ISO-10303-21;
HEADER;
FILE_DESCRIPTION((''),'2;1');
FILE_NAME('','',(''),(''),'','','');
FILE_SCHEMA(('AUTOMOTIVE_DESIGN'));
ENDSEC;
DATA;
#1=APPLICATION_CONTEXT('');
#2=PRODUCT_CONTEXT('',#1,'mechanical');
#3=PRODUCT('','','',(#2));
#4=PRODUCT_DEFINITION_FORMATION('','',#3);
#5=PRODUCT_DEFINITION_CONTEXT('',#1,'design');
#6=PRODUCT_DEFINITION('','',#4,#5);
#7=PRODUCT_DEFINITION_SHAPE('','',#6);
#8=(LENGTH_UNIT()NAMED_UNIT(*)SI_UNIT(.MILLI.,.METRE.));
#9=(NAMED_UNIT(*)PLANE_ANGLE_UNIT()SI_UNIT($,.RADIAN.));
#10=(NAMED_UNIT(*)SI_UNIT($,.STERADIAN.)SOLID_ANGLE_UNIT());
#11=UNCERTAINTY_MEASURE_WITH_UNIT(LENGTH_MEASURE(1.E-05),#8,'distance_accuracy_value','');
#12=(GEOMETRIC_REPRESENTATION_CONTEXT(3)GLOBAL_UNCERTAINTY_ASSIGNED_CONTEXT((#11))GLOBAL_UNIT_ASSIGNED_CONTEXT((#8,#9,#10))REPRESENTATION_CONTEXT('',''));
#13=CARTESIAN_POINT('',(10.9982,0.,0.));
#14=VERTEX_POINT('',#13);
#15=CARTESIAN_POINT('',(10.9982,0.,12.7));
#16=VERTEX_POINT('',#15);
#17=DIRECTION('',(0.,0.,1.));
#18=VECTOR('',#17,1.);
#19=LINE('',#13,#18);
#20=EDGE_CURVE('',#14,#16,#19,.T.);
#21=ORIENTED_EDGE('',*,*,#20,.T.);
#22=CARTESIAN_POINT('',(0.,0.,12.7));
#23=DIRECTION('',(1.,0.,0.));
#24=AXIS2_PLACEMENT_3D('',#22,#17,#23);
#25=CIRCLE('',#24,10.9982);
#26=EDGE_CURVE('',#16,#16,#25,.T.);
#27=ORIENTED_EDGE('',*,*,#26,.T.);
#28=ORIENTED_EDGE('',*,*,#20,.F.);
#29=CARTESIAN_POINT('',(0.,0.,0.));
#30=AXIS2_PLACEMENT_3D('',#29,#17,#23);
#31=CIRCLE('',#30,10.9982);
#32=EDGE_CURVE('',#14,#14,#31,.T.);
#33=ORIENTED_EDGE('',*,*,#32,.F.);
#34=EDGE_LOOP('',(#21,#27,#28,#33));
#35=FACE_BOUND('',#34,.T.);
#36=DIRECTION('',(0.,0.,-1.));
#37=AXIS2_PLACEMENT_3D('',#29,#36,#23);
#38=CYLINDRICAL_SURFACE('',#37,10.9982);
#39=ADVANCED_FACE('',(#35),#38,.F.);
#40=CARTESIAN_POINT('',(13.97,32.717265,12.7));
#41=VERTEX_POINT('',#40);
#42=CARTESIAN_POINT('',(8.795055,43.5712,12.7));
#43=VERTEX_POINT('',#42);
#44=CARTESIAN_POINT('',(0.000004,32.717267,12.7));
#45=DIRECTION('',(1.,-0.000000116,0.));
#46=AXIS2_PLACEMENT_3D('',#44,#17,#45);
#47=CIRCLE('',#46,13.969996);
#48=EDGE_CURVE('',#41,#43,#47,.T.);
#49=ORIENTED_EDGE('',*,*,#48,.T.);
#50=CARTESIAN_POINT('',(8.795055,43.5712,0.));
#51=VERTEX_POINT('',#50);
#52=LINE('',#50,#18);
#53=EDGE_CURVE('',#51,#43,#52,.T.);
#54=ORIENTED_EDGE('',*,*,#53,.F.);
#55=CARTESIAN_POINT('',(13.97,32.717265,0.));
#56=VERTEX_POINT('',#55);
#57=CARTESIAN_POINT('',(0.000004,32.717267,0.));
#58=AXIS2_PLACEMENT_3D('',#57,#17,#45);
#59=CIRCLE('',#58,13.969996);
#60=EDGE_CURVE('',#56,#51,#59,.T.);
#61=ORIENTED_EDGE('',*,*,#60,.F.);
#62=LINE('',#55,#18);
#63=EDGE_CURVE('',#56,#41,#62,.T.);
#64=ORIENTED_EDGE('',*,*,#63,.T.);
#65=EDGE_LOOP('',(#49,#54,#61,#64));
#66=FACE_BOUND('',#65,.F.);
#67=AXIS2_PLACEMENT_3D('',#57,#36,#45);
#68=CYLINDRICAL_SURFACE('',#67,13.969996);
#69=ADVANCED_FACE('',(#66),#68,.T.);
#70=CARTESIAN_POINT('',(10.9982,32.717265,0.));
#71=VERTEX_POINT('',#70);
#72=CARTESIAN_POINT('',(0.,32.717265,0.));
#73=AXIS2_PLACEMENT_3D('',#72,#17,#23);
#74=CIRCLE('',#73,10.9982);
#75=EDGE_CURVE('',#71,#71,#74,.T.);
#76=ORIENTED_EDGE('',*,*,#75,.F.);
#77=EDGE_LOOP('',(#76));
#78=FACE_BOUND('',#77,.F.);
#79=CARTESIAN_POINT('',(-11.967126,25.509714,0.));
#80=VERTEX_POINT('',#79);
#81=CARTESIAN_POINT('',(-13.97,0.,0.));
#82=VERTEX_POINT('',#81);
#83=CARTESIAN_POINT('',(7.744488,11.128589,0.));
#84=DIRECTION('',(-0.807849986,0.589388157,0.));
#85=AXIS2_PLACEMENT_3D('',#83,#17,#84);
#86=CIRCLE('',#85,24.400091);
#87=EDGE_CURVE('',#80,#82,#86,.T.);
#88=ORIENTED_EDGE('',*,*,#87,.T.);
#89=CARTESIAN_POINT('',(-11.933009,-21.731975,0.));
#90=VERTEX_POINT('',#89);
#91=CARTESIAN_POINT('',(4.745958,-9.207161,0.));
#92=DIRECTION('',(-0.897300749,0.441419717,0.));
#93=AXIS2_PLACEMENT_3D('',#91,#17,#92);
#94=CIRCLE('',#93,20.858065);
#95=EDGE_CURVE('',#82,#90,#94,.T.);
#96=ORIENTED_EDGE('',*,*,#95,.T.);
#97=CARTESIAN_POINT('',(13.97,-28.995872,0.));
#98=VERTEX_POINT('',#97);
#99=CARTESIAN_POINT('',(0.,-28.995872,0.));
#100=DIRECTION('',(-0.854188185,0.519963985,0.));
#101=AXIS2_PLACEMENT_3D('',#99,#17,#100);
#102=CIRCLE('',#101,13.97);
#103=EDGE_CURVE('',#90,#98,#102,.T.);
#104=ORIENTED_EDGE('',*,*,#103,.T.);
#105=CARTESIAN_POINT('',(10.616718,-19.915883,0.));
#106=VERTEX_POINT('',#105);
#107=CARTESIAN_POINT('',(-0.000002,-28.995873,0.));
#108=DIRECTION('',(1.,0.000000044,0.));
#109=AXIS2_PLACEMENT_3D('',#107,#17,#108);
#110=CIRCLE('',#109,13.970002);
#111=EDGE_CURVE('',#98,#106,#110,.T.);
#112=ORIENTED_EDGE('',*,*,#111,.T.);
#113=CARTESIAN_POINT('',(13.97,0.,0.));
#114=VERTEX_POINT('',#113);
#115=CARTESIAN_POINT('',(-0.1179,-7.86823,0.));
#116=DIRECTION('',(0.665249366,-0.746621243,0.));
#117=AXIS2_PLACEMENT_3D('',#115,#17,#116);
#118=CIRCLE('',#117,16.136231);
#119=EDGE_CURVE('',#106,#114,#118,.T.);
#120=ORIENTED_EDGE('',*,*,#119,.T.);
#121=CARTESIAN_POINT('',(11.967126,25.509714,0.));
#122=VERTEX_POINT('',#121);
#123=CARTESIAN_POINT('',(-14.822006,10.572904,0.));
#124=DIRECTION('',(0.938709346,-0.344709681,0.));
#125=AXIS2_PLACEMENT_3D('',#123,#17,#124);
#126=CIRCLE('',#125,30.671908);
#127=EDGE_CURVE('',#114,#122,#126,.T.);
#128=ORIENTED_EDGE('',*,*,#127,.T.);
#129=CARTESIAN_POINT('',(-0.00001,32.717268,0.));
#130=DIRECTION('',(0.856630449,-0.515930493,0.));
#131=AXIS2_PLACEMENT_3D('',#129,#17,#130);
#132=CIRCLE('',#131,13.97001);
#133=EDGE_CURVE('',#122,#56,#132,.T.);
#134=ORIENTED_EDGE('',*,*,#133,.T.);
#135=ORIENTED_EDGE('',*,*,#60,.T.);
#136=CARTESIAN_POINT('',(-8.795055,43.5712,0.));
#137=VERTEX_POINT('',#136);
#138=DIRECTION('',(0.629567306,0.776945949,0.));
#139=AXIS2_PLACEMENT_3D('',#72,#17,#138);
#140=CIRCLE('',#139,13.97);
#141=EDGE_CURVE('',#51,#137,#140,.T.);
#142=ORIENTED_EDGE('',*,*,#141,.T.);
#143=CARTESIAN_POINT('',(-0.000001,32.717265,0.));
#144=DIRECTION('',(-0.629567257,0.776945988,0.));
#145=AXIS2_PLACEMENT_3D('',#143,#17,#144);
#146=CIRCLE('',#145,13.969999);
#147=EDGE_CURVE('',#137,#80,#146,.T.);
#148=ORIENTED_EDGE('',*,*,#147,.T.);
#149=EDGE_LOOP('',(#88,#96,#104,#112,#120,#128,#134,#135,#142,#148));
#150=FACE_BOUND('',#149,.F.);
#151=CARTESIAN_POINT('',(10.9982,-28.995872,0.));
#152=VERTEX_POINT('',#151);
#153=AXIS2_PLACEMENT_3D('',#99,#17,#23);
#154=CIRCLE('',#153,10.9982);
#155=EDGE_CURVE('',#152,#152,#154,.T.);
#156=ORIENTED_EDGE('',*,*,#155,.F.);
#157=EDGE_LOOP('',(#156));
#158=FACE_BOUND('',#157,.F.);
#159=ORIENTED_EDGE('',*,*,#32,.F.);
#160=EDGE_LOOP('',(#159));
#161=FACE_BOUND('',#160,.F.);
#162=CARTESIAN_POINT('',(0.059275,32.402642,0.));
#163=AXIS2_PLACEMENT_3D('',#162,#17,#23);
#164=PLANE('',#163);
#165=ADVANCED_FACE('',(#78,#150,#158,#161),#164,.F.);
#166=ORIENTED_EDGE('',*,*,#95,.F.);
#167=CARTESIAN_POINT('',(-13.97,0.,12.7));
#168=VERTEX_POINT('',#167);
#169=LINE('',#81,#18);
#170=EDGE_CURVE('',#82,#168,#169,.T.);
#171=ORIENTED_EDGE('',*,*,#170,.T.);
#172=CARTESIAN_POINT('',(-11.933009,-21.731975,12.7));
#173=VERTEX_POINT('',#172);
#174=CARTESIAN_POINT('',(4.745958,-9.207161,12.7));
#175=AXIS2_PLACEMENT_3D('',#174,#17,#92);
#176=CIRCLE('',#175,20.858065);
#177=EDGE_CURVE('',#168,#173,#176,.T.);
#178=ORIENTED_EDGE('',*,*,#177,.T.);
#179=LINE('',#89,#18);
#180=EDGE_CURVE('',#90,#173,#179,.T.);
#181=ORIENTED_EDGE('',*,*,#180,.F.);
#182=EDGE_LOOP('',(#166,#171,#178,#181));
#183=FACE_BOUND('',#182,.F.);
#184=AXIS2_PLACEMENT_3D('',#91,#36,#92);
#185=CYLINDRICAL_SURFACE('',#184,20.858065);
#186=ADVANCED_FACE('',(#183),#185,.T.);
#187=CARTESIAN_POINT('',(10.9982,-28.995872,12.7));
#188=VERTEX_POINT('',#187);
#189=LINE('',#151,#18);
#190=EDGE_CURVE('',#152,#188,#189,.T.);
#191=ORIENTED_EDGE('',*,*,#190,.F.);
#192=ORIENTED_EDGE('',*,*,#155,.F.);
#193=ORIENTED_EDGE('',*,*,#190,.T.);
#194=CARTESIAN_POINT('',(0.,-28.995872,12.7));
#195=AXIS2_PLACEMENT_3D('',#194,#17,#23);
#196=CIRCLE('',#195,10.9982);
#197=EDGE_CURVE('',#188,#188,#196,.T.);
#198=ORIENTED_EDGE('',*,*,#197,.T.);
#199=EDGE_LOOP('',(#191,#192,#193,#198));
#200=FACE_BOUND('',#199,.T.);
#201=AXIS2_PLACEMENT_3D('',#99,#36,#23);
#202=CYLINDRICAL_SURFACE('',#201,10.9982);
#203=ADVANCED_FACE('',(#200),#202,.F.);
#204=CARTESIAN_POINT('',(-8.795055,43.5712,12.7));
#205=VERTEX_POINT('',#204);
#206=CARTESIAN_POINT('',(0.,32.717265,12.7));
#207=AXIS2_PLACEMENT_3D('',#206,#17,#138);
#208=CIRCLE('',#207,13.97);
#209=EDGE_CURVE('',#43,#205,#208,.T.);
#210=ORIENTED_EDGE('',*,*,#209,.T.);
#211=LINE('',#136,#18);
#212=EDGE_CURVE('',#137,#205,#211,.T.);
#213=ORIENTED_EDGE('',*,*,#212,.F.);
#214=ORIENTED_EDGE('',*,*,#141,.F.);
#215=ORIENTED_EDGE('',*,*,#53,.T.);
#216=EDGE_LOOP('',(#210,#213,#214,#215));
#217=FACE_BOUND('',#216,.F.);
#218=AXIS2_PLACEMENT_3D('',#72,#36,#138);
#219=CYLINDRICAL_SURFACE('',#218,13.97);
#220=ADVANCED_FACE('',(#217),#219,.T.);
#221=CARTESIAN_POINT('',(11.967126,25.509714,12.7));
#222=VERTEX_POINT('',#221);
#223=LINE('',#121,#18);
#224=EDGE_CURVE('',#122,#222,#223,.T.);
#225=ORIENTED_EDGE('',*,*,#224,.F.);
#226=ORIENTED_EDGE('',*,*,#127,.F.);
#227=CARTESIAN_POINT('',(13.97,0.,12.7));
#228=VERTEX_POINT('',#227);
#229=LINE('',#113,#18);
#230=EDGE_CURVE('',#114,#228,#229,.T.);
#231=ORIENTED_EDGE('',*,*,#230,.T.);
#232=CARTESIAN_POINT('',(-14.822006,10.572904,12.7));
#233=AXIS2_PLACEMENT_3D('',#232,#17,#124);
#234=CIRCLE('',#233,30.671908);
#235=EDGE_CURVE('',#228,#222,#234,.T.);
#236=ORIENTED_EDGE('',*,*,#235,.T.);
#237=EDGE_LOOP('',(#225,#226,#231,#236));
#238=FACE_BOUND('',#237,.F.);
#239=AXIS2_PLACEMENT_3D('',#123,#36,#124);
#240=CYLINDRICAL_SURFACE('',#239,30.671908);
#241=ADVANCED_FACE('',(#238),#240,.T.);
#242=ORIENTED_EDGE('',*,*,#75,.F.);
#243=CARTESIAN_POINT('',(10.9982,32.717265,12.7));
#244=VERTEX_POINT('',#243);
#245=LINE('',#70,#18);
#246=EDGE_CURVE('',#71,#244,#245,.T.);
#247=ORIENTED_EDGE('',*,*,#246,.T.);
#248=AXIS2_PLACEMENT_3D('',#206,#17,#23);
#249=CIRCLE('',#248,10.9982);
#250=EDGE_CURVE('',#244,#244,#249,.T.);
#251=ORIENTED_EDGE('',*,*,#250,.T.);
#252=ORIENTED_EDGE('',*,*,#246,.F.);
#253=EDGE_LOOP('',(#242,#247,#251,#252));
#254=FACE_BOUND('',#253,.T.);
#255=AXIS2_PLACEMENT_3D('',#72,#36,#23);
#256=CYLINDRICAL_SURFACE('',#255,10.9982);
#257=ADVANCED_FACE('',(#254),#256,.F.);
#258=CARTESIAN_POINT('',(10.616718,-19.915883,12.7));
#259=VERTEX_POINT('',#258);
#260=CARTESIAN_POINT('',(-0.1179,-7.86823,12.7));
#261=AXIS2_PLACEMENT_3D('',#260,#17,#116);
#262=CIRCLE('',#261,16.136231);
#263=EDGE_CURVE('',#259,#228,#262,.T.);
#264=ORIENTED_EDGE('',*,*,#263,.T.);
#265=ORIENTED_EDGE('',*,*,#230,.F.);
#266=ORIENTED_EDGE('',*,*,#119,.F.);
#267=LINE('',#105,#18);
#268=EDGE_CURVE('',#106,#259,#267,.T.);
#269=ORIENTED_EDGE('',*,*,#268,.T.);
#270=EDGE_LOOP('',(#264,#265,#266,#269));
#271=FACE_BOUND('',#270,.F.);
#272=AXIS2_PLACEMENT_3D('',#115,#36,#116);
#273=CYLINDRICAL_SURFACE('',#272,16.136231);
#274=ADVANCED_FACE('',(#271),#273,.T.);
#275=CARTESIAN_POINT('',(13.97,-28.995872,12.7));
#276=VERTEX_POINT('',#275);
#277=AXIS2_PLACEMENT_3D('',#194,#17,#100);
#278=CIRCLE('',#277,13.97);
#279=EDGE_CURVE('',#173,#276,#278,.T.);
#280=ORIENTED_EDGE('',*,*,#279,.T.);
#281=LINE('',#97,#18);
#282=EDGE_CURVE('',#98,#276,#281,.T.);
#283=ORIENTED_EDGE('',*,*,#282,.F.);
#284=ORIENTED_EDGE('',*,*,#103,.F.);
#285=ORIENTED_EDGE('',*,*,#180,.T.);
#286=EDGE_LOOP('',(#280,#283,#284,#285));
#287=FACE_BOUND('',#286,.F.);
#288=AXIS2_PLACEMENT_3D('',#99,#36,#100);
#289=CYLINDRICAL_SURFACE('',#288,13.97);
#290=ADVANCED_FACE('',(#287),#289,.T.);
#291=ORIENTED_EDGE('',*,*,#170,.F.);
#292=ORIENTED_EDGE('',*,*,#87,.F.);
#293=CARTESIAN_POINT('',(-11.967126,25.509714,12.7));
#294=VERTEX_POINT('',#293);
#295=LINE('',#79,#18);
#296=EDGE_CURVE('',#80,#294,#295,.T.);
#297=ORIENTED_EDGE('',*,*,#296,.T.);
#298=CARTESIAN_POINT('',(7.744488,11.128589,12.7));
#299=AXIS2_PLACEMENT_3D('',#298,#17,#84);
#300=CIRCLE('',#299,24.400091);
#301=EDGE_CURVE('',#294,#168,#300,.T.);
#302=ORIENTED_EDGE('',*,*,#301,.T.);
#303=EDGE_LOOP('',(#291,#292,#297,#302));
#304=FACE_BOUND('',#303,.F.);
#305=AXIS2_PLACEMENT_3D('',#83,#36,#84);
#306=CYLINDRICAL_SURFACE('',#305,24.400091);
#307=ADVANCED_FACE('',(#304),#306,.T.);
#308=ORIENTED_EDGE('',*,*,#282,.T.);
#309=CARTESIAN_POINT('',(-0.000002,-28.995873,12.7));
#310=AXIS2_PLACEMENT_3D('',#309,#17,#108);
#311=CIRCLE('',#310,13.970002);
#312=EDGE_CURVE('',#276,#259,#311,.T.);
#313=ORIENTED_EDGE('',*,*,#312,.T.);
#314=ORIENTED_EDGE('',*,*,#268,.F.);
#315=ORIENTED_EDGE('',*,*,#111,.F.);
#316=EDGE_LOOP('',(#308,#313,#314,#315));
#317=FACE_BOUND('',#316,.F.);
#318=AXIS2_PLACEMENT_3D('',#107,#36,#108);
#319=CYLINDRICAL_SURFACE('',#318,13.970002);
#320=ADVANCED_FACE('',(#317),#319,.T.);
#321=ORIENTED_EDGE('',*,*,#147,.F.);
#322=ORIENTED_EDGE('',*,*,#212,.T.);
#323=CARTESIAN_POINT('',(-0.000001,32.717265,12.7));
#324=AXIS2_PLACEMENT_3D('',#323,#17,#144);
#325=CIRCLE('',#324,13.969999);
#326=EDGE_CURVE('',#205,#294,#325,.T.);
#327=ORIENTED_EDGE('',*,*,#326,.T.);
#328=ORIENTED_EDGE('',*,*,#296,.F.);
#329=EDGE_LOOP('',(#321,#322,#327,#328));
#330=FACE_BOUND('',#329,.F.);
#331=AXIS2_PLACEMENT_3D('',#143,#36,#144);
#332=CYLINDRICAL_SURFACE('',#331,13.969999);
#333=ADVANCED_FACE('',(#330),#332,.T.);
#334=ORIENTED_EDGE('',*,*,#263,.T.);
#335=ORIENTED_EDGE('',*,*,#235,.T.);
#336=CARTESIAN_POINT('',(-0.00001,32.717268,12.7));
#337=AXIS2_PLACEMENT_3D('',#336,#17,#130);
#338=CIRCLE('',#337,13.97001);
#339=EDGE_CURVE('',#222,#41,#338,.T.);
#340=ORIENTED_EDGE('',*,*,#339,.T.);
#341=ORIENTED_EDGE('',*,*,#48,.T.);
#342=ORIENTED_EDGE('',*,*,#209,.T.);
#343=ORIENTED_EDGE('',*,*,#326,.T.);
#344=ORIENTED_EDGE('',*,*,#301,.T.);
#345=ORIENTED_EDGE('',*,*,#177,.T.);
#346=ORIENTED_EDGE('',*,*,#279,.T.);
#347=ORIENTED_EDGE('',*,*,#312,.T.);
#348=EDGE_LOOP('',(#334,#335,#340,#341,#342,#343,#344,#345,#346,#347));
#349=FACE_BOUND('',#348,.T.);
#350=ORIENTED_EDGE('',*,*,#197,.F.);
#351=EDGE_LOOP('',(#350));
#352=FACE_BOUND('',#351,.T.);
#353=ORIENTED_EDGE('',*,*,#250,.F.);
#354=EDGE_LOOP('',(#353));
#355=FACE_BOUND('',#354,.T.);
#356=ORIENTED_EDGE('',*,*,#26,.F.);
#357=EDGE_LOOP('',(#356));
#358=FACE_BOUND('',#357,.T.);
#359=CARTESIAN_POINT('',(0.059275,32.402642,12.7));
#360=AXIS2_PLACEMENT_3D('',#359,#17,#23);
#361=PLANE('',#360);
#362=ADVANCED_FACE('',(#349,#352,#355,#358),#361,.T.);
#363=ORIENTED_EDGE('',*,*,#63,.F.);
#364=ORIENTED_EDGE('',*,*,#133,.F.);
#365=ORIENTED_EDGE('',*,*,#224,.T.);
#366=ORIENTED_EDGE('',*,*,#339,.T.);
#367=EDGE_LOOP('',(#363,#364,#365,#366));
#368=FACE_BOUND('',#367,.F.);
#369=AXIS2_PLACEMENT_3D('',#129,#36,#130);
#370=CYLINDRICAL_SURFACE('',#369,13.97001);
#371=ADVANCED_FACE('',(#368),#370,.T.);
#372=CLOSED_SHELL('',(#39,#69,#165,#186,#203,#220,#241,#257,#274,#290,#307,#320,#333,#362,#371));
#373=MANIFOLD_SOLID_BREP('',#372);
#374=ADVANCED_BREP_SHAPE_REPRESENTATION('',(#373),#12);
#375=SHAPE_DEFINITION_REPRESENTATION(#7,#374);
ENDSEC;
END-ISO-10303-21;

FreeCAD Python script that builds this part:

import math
import FreeCAD as App
import Part
import Sketcher
Q = App.Units.Quantity

doc = App.newDocument("Part")
body = doc.addObject("PartDesign::Body", "Body")

# Sketch on XY plane
sketch1 = body.newObject("Sketcher::SketchObject", "Sketch")
sketch1.AttachmentSupport = (doc.getObject("XY_Plane"), [""])
sketch1.MapMode = "FlatFace"
sketch1.addGeometry([
    Part.ArcOfCircle(Part.Circle(App.Vector(0.000004, 32.717267, 0), App.Vector(0, 0, 1), 13.969996), math.radians(-0.000007), math.radians(50.981802)),  # 0
    Part.ArcOfCircle(Part.Circle(App.Vector(0, 32.717265, 0), App.Vector(0, 0, 1), 13.97), math.radians(50.981794), math.radians(129.018206)),  # 1
    Part.ArcOfCircle(Part.Circle(App.Vector(-0.000001, 32.717265, 0), App.Vector(0, 0, 1), 13.969999), math.radians(129.018203), math.radians(211.059683)),  # 2
    Part.ArcOfCircle(Part.Circle(App.Vector(7.744488, 11.128589, 0), App.Vector(0, 0, 1), 24.400091), math.radians(143.886398), math.radians(207.13496)),  # 3
    Part.ArcOfCircle(Part.Circle(App.Vector(4.745958, -9.207161, 0), App.Vector(0, 0, 1), 20.858065), math.radians(153.8055), math.radians(216.904155)),  # 4
    Part.ArcOfCircle(Part.Circle(App.Vector(0, -28.995872, 0), App.Vector(0, 0, 1), 13.97), math.radians(148.670164), math.radians(360)),  # 5
    Part.ArcOfCircle(Part.Circle(App.Vector(-0.000002, -28.995873, 0), App.Vector(0, 0, 1), 13.970002), math.radians(0.000003), math.radians(40.538841)),  # 6
    Part.ArcOfCircle(Part.Circle(App.Vector(-0.1179, -7.86823, 0), App.Vector(0, 0, 1), 16.136231), math.radians(-48.298541), math.radians(29.183786)),  # 7
    Part.ArcOfCircle(Part.Circle(App.Vector(-14.822006, 10.572904, 0), App.Vector(0, 0, 1), 30.671908), math.radians(-20.164075), math.radians(29.142716)),  # 8
    Part.ArcOfCircle(Part.Circle(App.Vector(-0.00001, 32.717268, 0), App.Vector(0, 0, 1), 13.97001), math.radians(-31.059671), math.radians(-0.000012)),  # 9
    Part.Circle(App.Vector(0, 32.717265, 0), App.Vector(0, 0, 1), 10.9982),  # 10
    Part.Circle(App.Vector(0, -28.995872, 0), App.Vector(0, 0, 1), 10.9982),  # 11
    Part.Circle(App.Vector(0, 0, 0), App.Vector(0, 0, 1), 10.9982),  # 12
], False)
sketch1.addConstraint([
    Sketcher.Constraint("Tangent", 0, 2, 1, 1),
    Sketcher.Constraint("Tangent", 1, 2, 2, 1),
    Sketcher.Constraint("Coincident", 2, 2, 3, 1),
    Sketcher.Constraint("Coincident", 3, 2, 4, 1),
    Sketcher.Constraint("Coincident", 4, 2, 5, 1),
    Sketcher.Constraint("Tangent", 5, 2, 6, 1),
    Sketcher.Constraint("Coincident", 6, 2, 7, 1),
    Sketcher.Constraint("Coincident", 7, 2, 8, 1),
    Sketcher.Constraint("Coincident", 8, 2, 9, 1),
    Sketcher.Constraint("Tangent", 9, 2, 0, 1),
    Sketcher.Constraint("Coincident", 12, 3, -1, 1),
    Sketcher.Constraint("Coincident", 2, 3, 0, 3),
    Sketcher.Constraint("Coincident", 10, 3, 0, 3),
    Sketcher.Constraint("Coincident", 11, 3, 5, 3),
    Sketcher.Constraint("Equal", 2, 5),
    Sketcher.Constraint("Equal", 5, 6),
    Sketcher.Constraint("Equal", 10, 11),
    Sketcher.Constraint("Equal", 11, 12),
    Sketcher.Constraint("Symmetric", 3, 2, 7, 2, -1, 1),
    Sketcher.Constraint("Symmetric", 0, 2, 1, 2, -2),
    Sketcher.Constraint("Symmetric", 2, 2, 8, 2, -2),
    Sketcher.Constraint("PointOnObject", 5, 3, -2),
    Sketcher.Constraint("PointOnObject", 3, 2, -1),
    Sketcher.Constraint("Horizontal", 11, 3, 5, 2),
    Sketcher.Constraint("Horizontal", 10, 3, 9, 2),
    Sketcher.Constraint("Vertical", 5, 2, 7, 2),
    Sketcher.Constraint("Radius", 0, Q("0.5499999 in")),
    Sketcher.Constraint("Diameter", 10, Q("0.866 in")),
    Sketcher.Constraint("Radius", 3, 24.400091),
    Sketcher.Constraint("Radius", 7, 16.136231),
    Sketcher.Constraint("Radius", 4, 20.858065),
    Sketcher.Constraint("Radius", 8, 30.671908),
    Sketcher.Constraint("DistanceX", 7, 3, -1, 1, 0.1179),
    Sketcher.Constraint("DistanceY", -1, 1, 0, 2, 43.5712),
    Sketcher.Constraint("DistanceY", -1, 1, 3, 3, 11.128589),
    Sketcher.Constraint("DistanceY", 4, 3, -1, 1, 9.207161),
    Sketcher.Constraint("DistanceY", 5, 3, -1, 1, 28.995872),
    Sketcher.Constraint("DistanceY", 5, 3, 0, 3, 61.713139),
])
pad1 = body.newObject("PartDesign::Pad", "Pad")
pad1.Profile = sketch1
pad1.Length = Q("0.5 in")

doc.recompute()
